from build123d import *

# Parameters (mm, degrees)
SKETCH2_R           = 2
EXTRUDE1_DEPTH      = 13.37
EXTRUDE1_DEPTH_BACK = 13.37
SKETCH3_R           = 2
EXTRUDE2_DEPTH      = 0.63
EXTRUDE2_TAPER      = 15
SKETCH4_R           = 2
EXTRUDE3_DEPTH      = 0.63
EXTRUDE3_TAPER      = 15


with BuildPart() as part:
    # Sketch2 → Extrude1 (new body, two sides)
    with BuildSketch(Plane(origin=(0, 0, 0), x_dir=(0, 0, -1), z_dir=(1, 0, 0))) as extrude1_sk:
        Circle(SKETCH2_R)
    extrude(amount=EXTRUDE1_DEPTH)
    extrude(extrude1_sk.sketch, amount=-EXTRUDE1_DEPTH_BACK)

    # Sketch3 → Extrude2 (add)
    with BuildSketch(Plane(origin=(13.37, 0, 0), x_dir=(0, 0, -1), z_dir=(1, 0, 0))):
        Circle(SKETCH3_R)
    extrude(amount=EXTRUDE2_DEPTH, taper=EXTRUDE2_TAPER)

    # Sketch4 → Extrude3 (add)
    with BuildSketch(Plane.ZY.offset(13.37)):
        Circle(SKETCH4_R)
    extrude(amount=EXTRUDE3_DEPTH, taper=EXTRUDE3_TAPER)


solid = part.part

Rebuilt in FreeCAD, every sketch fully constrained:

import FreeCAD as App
import Part
import Sketcher

doc = App.newDocument("Part")
body = doc.addObject("PartDesign::Body", "Body")

sketch1 = body.newObject("Sketcher::SketchObject", "Sketch")
sketch1.AttachmentSupport = (doc.getObject("YZ_Plane"), [""])
sketch1.MapMode = "FlatFace"
sketch1.addGeometry(Part.Circle(App.Vector(0, 0, 0), App.Vector(0, 0, 1), 2), False)
sketch1.addConstraint([
    Sketcher.Constraint("Coincident", 0, 3, -1, 1),
    Sketcher.Constraint("Diameter", 0, 4.0),
])
pad1 = body.newObject("PartDesign::Pad", "Pad")
pad1.Profile = sketch1
pad1.Type = "TwoLengths"
pad1.Length = 13.37
pad1.Length2 = 13.37

sketch2 = body.newObject("Sketcher::SketchObject", "Sketch001")
sketch2.AttachmentSupport = (doc.getObject("YZ_Plane"), [""])
sketch2.MapMode = "FlatFace"
sketch2.AttachmentOffset = App.Placement(App.Vector(0, 0, 13.37), App.Rotation())
sketch2.addGeometry(Part.Circle(App.Vector(0, 0, 0), App.Vector(0, 0, 1), 2), False)
sketch2.addConstraint([
    Sketcher.Constraint("Coincident", 0, 3, -1, 1),
    Sketcher.Constraint("Diameter", 0, 4.0),
])
pad2 = body.newObject("PartDesign::Pad", "Pad001")
pad2.Profile = sketch2
pad2.Length = 0.63
pad2.TaperAngle = -15

sketch3 = body.newObject("Sketcher::SketchObject", "Sketch002")
sketch3.AttachmentSupport = (doc.getObject("YZ_Plane"), [""])
sketch3.MapMode = "FlatFace"
sketch3.AttachmentOffset = App.Placement(App.Vector(0, 0, -13.37), App.Rotation())
sketch3.addGeometry(Part.Circle(App.Vector(0, 0, 0), App.Vector(0, 0, 1), 2), False)
sketch3.addConstraint([
    Sketcher.Constraint("Coincident", 0, 3, -1, 1),
    Sketcher.Constraint("Diameter", 0, 4.0),
])
pad3 = body.newObject("PartDesign::Pad", "Pad002")
pad3.Profile = sketch3
pad3.Length = 0.63
pad3.Reversed = True
pad3.TaperAngle = -15

doc.recompute()
